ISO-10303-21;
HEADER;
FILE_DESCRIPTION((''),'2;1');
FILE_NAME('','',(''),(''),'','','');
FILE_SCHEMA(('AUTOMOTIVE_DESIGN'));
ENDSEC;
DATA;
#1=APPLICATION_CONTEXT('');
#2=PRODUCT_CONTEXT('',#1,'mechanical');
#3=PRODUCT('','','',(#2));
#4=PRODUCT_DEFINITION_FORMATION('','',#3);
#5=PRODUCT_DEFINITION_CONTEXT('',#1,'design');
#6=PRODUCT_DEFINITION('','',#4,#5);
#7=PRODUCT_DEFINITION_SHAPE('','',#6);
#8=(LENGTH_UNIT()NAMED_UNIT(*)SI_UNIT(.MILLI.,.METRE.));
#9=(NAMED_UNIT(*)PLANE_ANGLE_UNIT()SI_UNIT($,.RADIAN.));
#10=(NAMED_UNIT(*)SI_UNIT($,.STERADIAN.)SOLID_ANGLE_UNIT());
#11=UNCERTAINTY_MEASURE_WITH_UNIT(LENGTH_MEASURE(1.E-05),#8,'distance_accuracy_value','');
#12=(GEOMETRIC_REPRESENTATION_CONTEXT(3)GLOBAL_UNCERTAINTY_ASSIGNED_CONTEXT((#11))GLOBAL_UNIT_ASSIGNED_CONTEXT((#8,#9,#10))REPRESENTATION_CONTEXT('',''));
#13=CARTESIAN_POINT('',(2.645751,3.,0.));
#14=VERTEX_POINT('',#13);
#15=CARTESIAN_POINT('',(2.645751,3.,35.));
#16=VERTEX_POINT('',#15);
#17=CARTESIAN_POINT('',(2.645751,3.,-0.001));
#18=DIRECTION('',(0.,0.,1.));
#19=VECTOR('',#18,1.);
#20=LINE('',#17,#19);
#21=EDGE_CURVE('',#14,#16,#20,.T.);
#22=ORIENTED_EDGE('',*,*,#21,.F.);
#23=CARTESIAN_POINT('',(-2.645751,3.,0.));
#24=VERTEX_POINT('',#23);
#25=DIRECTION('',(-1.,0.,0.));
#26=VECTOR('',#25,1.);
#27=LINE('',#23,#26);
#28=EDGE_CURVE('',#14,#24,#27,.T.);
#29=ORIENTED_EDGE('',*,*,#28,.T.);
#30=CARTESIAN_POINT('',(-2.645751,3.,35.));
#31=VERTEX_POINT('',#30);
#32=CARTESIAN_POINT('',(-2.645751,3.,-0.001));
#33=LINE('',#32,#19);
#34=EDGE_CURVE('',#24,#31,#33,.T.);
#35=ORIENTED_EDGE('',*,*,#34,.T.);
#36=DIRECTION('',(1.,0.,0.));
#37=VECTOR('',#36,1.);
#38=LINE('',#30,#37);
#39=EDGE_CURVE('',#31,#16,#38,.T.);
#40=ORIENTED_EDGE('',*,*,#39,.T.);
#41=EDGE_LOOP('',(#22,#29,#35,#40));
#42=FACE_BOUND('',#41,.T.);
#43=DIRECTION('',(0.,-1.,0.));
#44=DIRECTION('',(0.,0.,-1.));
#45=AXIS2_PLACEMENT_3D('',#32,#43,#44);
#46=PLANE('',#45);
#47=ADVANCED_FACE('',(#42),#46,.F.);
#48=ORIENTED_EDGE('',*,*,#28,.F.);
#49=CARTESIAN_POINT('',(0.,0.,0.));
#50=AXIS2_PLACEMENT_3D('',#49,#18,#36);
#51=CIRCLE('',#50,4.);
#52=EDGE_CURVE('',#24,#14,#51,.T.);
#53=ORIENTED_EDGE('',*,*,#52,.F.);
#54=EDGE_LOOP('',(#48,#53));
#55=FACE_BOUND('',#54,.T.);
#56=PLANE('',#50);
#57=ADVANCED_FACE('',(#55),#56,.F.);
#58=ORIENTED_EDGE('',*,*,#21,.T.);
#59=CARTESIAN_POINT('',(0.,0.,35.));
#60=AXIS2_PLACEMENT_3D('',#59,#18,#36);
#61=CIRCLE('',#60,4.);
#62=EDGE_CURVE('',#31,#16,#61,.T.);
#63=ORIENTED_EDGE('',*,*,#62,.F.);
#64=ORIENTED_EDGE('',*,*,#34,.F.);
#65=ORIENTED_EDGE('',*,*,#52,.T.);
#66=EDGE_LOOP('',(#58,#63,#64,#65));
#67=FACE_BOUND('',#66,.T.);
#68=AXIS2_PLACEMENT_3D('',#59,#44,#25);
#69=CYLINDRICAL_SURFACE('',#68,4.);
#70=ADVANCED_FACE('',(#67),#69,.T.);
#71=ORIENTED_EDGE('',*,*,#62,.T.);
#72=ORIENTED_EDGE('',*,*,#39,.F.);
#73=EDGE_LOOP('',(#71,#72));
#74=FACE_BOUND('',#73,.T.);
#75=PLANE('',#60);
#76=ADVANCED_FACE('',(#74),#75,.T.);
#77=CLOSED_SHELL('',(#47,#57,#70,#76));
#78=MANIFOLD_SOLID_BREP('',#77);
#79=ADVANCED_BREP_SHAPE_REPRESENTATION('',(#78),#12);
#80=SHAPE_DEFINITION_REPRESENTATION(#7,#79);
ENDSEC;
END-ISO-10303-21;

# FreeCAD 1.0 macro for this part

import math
import FreeCAD as App
import Part
import Sketcher

V = App.Vector
Q = App.Units.Quantity

doc = App.newDocument("Part")
body = doc.addObject("PartDesign::Body", "Body")

# Sketch on XY plane
sketch1 = body.newObject("Sketcher::SketchObject", "Sketch")
sketch1.AttachmentSupport = (doc.getObject("XY_Plane"), [""])
sketch1.MapMode = "FlatFace"
sketch1.addGeometry(Part.Circle(V(0, 0, 0), V(0, 0, 1), 4), False)
sketch1.addConstraint(Sketcher.Constraint("Coincident", 0, 3, -1, 1))
sketch1.addConstraint(Sketcher.Constraint("Diameter", 0, Q("8 mm")))
pad1 = body.newObject("PartDesign::Pad", "Pad")
pad1.Profile = sketch1
pad1.Length = 35

# Sketch on XY plane
sketch2 = body.newObject("Sketcher::SketchObject", "Sketch001")
sketch2.AttachmentSupport = (doc.getObject("XY_Plane"), [""])
sketch2.MapMode = "FlatFace"
sketch2.AttachmentOffset = App.Placement(V(0, 0, 35), App.Rotation())
sketch2.addGeometry(Part.LineSegment(V(-2.645751, 3, 0), V(2.645751, 3, 0)), False)
sketch2.addGeometry(Part.ArcOfCircle(Part.Circle(V(0, 0, 0), V(0, 0, 1), 4), math.radians(48.590378), math.radians(131.409622)), False)
sketch2.addConstraint(Sketcher.Constraint("Coincident", 0, 1, 1, 2))
sketch2.addConstraint(Sketcher.Constraint("Coincident", 1, 1, 0, 2))
sketch2.addConstraint(Sketcher.Constraint("Horizontal", 0))
sketch2.addConstraint(Sketcher.Constraint("Coincident", 1, 3, -1, 1))
sketch2.addConstraint(Sketcher.Constraint("Radius", 1, Q("4 mm")))
sketch2.addConstraint(Sketcher.Constraint("DistanceY", -1, 1, 0, 1, Q("3 mm")))
pocket1 = body.newObject("PartDesign::Pocket", "Pocket")
pocket1.Profile = sketch2
pocket1.Type = "UpToFirst"

# Sketch on XY plane
sketch3 = body.newObject("Sketcher::SketchObject", "Sketch002")
sketch3.AttachmentSupport = (doc.getObject("XY_Plane"), [""])
sketch3.MapMode = "FlatFace"
sketch3.AttachmentOffset = App.Placement(V(0, 0, 35), App.Rotation())
sketch3.addGeometry(Part.LineSegment(V(-2.645751, 3, 0), V(2.645751, 3, 0)), False)
sketch3.addGeometry(Part.ArcOfCircle(Part.Circle(V(0, 0, 0), V(0, 0, 1), 4), math.radians(48.590378), math.radians(131.409622)), False)
sketch3.addConstraint(Sketcher.Constraint("Coincident", 0, 1, 1, 2))
sketch3.addConstraint(Sketcher.Constraint("Coincident", 1, 1, 0, 2))
sketch3.addConstraint(Sketcher.Constraint("Horizontal", 0))
sketch3.addConstraint(Sketcher.Constraint("Coincident", 1, 3, -1, 1))
sketch3.addConstraint(Sketcher.Constraint("Radius", 1, Q("4 mm")))
sketch3.addConstraint(Sketcher.Constraint("DistanceY", -1, 1, 0, 1, Q("3 mm")))
pocket2 = body.newObject("PartDesign::Pocket", "Pocket001")
pocket2.Profile = sketch3
pocket2.Length = 1
pocket2.Reversed = True

doc.recompute()
